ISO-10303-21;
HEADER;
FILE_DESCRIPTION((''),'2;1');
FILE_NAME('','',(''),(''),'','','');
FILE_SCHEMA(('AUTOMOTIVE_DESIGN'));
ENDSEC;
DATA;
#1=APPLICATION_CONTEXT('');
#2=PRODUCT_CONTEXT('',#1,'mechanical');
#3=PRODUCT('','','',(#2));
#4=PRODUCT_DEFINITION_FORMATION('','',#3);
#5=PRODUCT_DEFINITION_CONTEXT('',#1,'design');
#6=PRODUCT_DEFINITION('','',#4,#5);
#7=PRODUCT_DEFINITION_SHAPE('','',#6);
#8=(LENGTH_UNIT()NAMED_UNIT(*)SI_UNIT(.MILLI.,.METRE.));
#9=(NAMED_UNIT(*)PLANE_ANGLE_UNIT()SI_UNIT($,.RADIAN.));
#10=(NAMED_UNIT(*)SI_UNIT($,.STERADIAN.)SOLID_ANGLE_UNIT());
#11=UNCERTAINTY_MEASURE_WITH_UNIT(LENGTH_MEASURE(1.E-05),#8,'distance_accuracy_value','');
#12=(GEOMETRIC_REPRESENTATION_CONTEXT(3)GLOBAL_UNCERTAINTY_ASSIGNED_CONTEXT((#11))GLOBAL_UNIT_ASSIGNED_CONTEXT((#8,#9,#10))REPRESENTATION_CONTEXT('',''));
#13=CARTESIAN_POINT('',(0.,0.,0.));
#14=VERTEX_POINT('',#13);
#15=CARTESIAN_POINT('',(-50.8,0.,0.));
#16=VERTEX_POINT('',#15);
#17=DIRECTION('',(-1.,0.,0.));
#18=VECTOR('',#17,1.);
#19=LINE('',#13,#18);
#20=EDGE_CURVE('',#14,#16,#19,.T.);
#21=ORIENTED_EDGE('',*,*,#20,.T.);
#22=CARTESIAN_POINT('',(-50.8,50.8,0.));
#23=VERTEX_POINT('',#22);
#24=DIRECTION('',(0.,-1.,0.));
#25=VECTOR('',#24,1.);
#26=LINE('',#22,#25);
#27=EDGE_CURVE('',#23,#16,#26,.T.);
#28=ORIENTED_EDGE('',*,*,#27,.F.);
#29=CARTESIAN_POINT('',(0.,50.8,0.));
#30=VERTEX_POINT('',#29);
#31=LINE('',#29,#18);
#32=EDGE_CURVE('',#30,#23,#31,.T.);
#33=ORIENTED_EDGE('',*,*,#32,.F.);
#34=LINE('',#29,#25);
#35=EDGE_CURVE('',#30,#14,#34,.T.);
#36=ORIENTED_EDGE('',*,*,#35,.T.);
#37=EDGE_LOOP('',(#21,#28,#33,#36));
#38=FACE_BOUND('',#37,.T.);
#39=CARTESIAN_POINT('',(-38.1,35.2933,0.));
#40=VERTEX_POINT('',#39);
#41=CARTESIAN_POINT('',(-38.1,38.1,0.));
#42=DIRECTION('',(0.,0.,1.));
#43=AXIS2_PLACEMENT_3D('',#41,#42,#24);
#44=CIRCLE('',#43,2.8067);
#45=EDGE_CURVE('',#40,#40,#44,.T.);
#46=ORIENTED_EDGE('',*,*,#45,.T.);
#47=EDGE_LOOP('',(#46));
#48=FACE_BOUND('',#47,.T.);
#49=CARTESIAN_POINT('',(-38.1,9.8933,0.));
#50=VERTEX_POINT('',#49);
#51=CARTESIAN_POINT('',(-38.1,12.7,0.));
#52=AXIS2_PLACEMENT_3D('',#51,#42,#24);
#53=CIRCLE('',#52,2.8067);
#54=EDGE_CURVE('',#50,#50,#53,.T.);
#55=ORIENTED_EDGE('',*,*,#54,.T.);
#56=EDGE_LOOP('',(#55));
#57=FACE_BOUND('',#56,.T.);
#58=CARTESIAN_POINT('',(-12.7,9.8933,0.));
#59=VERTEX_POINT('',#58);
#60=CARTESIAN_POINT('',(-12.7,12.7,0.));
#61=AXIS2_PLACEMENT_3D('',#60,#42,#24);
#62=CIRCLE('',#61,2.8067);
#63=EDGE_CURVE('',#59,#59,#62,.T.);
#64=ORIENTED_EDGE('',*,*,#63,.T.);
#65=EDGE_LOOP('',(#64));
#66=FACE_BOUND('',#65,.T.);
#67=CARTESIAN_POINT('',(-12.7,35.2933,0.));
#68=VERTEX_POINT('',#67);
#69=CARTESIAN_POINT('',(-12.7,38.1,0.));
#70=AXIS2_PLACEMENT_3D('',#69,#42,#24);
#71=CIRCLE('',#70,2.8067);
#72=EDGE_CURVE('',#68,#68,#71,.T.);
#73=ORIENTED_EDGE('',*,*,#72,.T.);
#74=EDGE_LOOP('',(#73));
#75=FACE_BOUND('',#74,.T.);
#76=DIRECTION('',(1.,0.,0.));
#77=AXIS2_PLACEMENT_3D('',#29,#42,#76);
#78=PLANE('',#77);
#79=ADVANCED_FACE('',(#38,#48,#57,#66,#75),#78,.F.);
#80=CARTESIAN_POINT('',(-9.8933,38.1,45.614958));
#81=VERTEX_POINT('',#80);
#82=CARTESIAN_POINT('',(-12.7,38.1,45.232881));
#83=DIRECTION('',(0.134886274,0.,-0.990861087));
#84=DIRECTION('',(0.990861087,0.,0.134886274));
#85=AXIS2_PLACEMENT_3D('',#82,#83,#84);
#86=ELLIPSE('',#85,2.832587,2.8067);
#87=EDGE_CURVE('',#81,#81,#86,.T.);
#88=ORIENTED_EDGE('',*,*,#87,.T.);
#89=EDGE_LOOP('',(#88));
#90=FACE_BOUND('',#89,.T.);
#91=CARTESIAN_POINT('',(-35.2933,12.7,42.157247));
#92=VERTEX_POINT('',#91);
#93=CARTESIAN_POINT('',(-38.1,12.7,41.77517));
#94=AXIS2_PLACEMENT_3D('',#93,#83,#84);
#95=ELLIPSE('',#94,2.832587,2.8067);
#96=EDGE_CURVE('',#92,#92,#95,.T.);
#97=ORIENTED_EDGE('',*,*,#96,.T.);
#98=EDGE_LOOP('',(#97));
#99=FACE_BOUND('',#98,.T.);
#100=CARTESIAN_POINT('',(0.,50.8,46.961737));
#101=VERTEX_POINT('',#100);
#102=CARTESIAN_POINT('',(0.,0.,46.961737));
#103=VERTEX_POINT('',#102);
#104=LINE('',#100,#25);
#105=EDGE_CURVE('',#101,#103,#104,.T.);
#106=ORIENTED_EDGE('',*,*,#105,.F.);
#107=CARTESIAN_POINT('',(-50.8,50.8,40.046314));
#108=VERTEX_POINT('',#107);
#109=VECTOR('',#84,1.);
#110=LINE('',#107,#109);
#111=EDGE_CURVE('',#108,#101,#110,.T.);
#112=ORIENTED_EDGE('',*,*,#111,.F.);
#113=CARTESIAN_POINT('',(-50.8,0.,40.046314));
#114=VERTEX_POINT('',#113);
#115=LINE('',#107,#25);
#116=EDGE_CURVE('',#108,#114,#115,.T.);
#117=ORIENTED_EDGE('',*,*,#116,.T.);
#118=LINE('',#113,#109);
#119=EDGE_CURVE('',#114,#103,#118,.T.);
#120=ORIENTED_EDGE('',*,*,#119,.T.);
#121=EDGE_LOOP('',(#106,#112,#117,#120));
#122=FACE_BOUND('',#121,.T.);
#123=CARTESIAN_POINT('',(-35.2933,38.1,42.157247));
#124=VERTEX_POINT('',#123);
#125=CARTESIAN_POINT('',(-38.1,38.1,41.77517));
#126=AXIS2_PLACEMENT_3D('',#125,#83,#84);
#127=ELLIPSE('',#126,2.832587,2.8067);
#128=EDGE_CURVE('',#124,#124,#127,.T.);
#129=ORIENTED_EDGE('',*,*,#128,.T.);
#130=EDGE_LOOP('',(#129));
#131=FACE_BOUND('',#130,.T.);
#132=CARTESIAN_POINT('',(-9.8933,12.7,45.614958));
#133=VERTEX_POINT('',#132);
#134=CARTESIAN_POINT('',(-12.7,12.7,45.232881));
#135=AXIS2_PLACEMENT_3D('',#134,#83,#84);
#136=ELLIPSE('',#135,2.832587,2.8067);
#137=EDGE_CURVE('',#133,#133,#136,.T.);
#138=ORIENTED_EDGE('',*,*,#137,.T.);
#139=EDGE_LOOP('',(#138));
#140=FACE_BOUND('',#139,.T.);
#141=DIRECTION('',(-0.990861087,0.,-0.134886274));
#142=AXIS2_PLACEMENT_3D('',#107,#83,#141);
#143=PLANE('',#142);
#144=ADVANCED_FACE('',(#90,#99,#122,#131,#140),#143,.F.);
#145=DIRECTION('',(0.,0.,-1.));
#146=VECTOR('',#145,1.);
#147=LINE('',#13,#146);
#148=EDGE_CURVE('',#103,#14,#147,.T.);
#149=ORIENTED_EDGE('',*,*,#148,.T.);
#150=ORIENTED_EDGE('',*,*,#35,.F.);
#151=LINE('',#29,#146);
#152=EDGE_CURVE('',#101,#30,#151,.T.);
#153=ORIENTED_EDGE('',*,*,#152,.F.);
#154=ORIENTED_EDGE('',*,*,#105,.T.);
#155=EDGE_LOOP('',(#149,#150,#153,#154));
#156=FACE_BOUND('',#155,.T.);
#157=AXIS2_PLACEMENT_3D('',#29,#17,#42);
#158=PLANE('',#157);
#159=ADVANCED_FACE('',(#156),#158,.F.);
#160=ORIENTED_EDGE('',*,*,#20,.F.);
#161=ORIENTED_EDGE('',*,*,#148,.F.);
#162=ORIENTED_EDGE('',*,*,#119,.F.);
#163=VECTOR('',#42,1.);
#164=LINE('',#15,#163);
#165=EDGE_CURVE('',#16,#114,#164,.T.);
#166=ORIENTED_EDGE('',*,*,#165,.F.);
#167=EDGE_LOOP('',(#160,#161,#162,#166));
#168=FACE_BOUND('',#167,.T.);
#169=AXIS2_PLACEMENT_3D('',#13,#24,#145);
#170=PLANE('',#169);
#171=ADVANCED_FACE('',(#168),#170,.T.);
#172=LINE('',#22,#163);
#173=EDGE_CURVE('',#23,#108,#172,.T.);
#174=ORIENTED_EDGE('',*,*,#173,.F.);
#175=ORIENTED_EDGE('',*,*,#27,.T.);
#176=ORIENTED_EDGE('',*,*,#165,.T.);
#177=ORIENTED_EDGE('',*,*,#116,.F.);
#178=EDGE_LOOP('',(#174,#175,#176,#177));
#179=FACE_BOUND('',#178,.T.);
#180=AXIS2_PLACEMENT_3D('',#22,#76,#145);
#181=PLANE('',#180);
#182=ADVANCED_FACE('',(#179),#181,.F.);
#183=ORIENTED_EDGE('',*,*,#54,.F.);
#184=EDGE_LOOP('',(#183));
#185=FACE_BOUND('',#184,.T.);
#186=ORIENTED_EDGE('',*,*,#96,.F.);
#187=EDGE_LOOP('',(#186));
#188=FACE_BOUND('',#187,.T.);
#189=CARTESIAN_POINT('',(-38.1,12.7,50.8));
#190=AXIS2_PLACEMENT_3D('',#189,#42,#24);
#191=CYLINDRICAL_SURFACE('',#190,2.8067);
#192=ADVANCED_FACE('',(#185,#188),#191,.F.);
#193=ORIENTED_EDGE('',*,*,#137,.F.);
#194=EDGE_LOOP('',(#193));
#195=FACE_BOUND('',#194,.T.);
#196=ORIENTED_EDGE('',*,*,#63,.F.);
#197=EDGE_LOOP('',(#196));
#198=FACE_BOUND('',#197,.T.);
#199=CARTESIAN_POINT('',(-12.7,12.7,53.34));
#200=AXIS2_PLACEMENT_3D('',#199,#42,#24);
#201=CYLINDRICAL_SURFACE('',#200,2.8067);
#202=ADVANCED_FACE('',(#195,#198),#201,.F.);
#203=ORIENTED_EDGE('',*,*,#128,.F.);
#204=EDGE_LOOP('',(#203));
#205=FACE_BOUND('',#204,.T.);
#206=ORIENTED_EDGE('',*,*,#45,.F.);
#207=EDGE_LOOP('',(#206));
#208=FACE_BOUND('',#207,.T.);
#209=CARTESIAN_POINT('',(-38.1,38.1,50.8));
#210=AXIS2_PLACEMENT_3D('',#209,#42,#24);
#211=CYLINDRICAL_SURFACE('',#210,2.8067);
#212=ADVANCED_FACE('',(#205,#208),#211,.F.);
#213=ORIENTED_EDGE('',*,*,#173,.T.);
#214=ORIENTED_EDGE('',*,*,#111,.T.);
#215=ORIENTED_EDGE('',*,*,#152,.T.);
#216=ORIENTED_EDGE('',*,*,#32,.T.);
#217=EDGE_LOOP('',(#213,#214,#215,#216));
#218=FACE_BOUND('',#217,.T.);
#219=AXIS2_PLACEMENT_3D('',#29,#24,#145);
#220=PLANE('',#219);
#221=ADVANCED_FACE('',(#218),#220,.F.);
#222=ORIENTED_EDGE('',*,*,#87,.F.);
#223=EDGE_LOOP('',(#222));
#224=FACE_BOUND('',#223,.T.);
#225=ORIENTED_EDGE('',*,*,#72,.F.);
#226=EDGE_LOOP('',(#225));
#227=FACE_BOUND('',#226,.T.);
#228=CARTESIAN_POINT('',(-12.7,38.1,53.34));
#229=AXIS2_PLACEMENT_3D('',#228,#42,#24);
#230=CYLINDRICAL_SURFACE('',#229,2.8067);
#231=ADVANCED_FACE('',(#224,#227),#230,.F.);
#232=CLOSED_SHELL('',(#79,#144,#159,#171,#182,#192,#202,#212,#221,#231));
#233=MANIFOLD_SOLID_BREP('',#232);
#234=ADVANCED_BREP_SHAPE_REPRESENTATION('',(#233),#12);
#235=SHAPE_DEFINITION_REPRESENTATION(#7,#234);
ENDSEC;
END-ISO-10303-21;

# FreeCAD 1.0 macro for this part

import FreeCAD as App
import Part
import Sketcher
from FreeCAD import Vector
Q = App.Units.Quantity


def add_polygon(sketch, points):
    """Adds a closed chain of lines whose ends are joined by coincident constraints."""
    first, n = sketch.GeometryCount, len(points)
    for a, b in zip(points, points[1:] + points[:1]):
        sketch.addGeometry(Part.LineSegment(App.Vector(*a, 0), App.Vector(*b, 0)), False)
    for i in range(n):
        sketch.addConstraint(Sketcher.Constraint("Coincident", first + i, 2, first + (i + 1) % n, 1))

doc = App.newDocument("Part")
params = doc.addObject("Spreadsheet::Sheet", "Params")
for row, (alias, value) in enumerate([
    ("sketch1_width", "2 in"),
    ("pad1_length", "2 in"),
    ("sketch2_diameter", "0.221 in"),
    ("hole_diameter", "0.221 in"),
    ("hole_csink_diameter", "0.7 in"),
    ("sketch3_diameter", "0.221 in"),
    ("hole2_diameter", "0.221 in"),
    ("hole2_csink_diameter", "0.7 in"),
], start=1):
    params.set(f"A{row}", alias)
    params.set(f"B{row}", "=" + value)
    params.setAlias(f"B{row}", alias)

body = doc.addObject("PartDesign::Body", "Body")

sketch1 = body.newObject("Sketcher::SketchObject", "Sketch")
sketch1.AttachmentSupport = (doc.getObject("XZ_Plane"), [""])
sketch1.MapMode = "FlatFace"
add_polygon(sketch1, [(0, 0), (-51, 0), (-51, 40), (0, 47)])
sketch1.addConstraint(Sketcher.Constraint("Horizontal", 0))
sketch1.addConstraint(Sketcher.Constraint("Vertical", 1))
sketch1.addConstraint(Sketcher.Constraint("Vertical", 3))
sketch1.addConstraint(Sketcher.Constraint("Coincident", 3, 2, -1, 1))
sketch1.addConstraint(Sketcher.Constraint("DistanceX", 0, 2, 0, 1, Q("2 in")))
sketch1.addConstraint(Sketcher.Constraint("Distance", 2, Q("51.268539 mm")))
sketch1.addConstraint(Sketcher.Constraint("DistanceY", 1, 1, 1, 2, Q("40.046314 mm")))
sketch1.setExpression("Constraints[8]", "Params.sketch1_width")
pad1 = body.newObject("PartDesign::Pad", "Pad")
pad1.Profile = sketch1
pad1.setExpression("Length", "Params.pad1_length")
pad1.Reversed = True

sketch2 = body.newObject("Sketcher::SketchObject", "Sketch001")
sketch2.AttachmentSupport = (doc.getObject("XY_Plane"), [""])
sketch2.MapMode = "FlatFace"
sketch2.AttachmentOffset = App.Placement(Vector(0, 0, 2 * 25.4), App.Rotation())
sketch2.addGeometry(Part.Circle(Vector(-38.1, 12.7, 0), Vector(0, 0, 1), 2.8), False)
sketch2.addGeometry(Part.Circle(Vector(-38.1, 38.1, 0), Vector(0, 0, 1), 2.8), False)
sketch2.addGeometry(Part.Circle(Vector(-38.1, 114.3, 0), Vector(0, 0, 1), 2.8), False)
sketch2.addGeometry(Part.Circle(Vector(-38.1, 139.7, 0), Vector(0, 0, 1), 2.8), False)
sketch2.addConstraint(Sketcher.Constraint("Equal", 0, 1))
sketch2.addConstraint(Sketcher.Constraint("Equal", 1, 2))
sketch2.addConstraint(Sketcher.Constraint("Equal", 2, 3))
sketch2.addConstraint(Sketcher.Constraint("Vertical", 0, 3, 1, 3))
sketch2.addConstraint(Sketcher.Constraint("Vertical", 1, 3, 2, 3))
sketch2.addConstraint(Sketcher.Constraint("Vertical", 2, 3, 3, 3))
sketch2.addConstraint(Sketcher.Constraint("Diameter", 0, Q("0.221 in")))
sketch2.addConstraint(Sketcher.Constraint("DistanceY", 0, 3, 1, 3, Q("1 in")))
sketch2.addConstraint(Sketcher.Constraint("DistanceY", 1, 3, 2, 3, Q("3 in")))
sketch2.addConstraint(Sketcher.Constraint("DistanceY", 2, 3, 3, 3, Q("1 in")))
sketch2.addConstraint(Sketcher.Constraint("DistanceX", 0, 3, -1, 1, Q("1.5 in")))
sketch2.addConstraint(Sketcher.Constraint("DistanceY", -1, 1, 0, 3, Q("0.5 in")))
sketch2.setExpression("Constraints[6]", "Params.sketch2_diameter")
doc.recompute()
hole = body.newObject("PartDesign::Hole", "Hole")
hole.Profile = sketch2
hole.ThreadType = "None"
hole.setExpression("Diameter", "Params.hole_diameter")
hole.DepthType = "ThroughAll"
hole.HoleCutType = "Countersink"
hole.setExpression("HoleCutDiameter", "Params.hole_csink_diameter")
hole.HoleCutCountersinkAngle = 90

sketch3 = body.newObject("Sketcher::SketchObject", "Sketch002")
sketch3.AttachmentSupport = (doc.getObject("XY_Plane"), [""])
sketch3.MapMode = "FlatFace"
sketch3.AttachmentOffset = App.Placement(Vector(0, 0, 2.1 * 25.4), App.Rotation())
sketch3.addGeometry(Part.Circle(Vector(-12.7, -63.5, 0), Vector(0, 0, 1), 2.8), False)
sketch3.addGeometry(Part.Circle(Vector(-12.7, -88.9, 0), Vector(0, 0, 1), 2.8), False)
sketch3.addGeometry(Part.Circle(Vector(-12.7, 12.7, 0), Vector(0, 0, 1), 2.8), False)
sketch3.addGeometry(Part.Circle(Vector(-12.7, 38.1, 0), Vector(0, 0, 1), 2.8), False)
sketch3.addConstraint(Sketcher.Constraint("Equal", 0, 1))
sketch3.addConstraint(Sketcher.Constraint("Equal", 1, 2))
sketch3.addConstraint(Sketcher.Constraint("Equal", 2, 3))
sketch3.addConstraint(Sketcher.Constraint("Vertical", 0, 3, 1, 3))
sketch3.addConstraint(Sketcher.Constraint("Vertical", 1, 3, 2, 3))
sketch3.addConstraint(Sketcher.Constraint("Vertical", 2, 3, 3, 3))
sketch3.addConstraint(Sketcher.Constraint("Diameter", 0, Q("0.221 in")))
sketch3.addConstraint(Sketcher.Constraint("DistanceY", 1, 3, 0, 3, Q("1 in")))
sketch3.addConstraint(Sketcher.Constraint("DistanceY", 0, 3, 2, 3, Q("3 in")))
sketch3.addConstraint(Sketcher.Constraint("DistanceY", 2, 3, 3, 3, Q("1 in")))
sketch3.addConstraint(Sketcher.Constraint("DistanceX", 0, 3, -1, 1, Q("0.5 in")))
sketch3.addConstraint(Sketcher.Constraint("DistanceY", 0, 3, -1, 1, Q("2.5 in")))
sketch3.setExpression("Constraints[6]", "Params.sketch3_diameter")
doc.recompute()
hole2 = body.newObject("PartDesign::Hole", "Hole001")
hole2.Profile = sketch3
hole2.ThreadType = "None"
hole2.setExpression("Diameter", "Params.hole2_diameter")
hole2.DepthType = "ThroughAll"
hole2.HoleCutType = "Countersink"
hole2.setExpression("HoleCutDiameter", "Params.hole2_csink_diameter")
hole2.HoleCutCountersinkAngle = 90

doc.recompute()
